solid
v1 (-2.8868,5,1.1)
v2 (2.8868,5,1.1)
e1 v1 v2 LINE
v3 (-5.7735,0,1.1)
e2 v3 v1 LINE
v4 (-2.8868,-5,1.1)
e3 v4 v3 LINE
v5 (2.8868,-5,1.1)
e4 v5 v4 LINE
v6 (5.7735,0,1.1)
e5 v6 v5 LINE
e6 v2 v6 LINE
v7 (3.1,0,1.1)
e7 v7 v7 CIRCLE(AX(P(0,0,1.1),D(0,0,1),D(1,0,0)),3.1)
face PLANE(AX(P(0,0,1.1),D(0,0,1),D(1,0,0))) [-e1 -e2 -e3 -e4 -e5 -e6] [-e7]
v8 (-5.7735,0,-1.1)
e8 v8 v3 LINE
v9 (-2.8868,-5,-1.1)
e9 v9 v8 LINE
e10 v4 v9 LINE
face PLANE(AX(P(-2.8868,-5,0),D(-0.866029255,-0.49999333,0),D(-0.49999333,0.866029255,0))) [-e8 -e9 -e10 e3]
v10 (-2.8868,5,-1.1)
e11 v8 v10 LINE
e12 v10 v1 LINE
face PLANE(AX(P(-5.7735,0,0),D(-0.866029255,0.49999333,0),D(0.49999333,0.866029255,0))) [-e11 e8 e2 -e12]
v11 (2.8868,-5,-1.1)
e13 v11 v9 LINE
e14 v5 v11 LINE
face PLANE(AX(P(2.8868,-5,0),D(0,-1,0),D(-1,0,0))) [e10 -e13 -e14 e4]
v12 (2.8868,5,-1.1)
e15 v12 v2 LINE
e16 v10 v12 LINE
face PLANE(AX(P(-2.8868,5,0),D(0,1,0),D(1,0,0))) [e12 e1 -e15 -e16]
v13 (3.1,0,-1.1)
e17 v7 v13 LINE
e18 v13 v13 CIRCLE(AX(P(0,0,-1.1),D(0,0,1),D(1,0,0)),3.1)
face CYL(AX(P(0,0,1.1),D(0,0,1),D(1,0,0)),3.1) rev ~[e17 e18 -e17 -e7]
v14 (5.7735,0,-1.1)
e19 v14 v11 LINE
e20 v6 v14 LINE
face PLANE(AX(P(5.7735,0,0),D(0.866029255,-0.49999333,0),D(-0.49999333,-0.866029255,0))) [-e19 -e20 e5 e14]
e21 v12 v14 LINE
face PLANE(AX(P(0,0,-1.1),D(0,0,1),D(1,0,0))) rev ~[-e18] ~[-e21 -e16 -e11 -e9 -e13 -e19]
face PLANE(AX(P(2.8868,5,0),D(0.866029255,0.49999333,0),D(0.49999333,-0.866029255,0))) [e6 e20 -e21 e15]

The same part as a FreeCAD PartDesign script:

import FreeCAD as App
import Part
import Sketcher
from FreeCAD import Vector
Q = App.Units.Quantity

doc = App.newDocument("Part")
body = doc.addObject("PartDesign::Body", "Body")

sketch1 = doc.addObject("Sketcher::SketchObject", "Sketch")
body.addObject(sketch1)
sketch1.AttachmentSupport = (doc.XY_Plane, [""])
sketch1.MapMode = "FlatFace"
sketch1.addGeometry(Part.LineSegment(Vector(6, 0, 0), Vector(3, 5, 0)), False)
sketch1.addGeometry(Part.LineSegment(Vector(3, 5, 0), Vector(-3, 5, 0)), False)
sketch1.addGeometry(Part.LineSegment(Vector(-3, 5, 0), Vector(-6, 0, 0)), False)
sketch1.addGeometry(Part.LineSegment(Vector(-6, 0, 0), Vector(-3, -5, 0)), False)
sketch1.addGeometry(Part.LineSegment(Vector(-3, -5, 0), Vector(3, -5, 0)), False)
sketch1.addGeometry(Part.LineSegment(Vector(3, -5, 0), Vector(6, 0, 0)), False)
sketch1.addConstraint(Sketcher.Constraint("Coincident", 0, 2, 1, 1))
sketch1.addConstraint(Sketcher.Constraint("Coincident", 1, 2, 2, 1))
sketch1.addConstraint(Sketcher.Constraint("Coincident", 2, 2, 3, 1))
sketch1.addConstraint(Sketcher.Constraint("Coincident", 3, 2, 4, 1))
sketch1.addConstraint(Sketcher.Constraint("Coincident", 4, 2, 5, 1))
sketch1.addConstraint(Sketcher.Constraint("Coincident", 5, 2, 0, 1))
sketch1.addConstraint(Sketcher.Constraint("Horizontal", 1))
sketch1.addConstraint(Sketcher.Constraint("Horizontal", 4))
sketch1.addConstraint(Sketcher.Constraint("Symmetric", 0, 2, 3, 2, -1, 1))
sketch1.addConstraint(Sketcher.Constraint("Symmetric", 2, 2, 5, 2, -1, 1))
sketch1.addConstraint(Sketcher.Constraint("PointOnObject", 2, 2, -1))
sketch1.addConstraint(Sketcher.Constraint("Parallel", 2, 5))
sketch1.addConstraint(Sketcher.Constraint("Vertical", 1, 2, 3, 2))
sketch1.addConstraint(Sketcher.Constraint("DistanceY", 3, 2, 1, 2, 10.0))
sketch1.addConstraint(Sketcher.Constraint("Angle", 0, Q("119.9996 deg")))
sketch1.addConstraint(Sketcher.Constraint("DistanceX", 1, 2, 1, 1, 5.7736))
pad1 = doc.addObject("PartDesign::Pad", "Pad")
body.addObject(pad1)
pad1.Profile = sketch1
pad1.Length = 2.2
pad1.Midplane = True

sketch2 = doc.addObject("Sketcher::SketchObject", "Sketch001")
body.addObject(sketch2)
sketch2.AttachmentSupport = (doc.XY_Plane, [""])
sketch2.MapMode = "FlatFace"
sketch2.AttachmentOffset = App.Placement(Vector(0, 0, 1.1), App.Rotation())
sketch2.addGeometry(Part.Circle(Vector(0, 0, 0), Vector(0, 0, 1), 3.1), False)
sketch2.addConstraint(Sketcher.Constraint("Coincident", 0, 3, -1, 1))
sketch2.addConstraint(Sketcher.Constraint("Diameter", 0, 6.2))
pocket1 = doc.addObject("PartDesign::Pocket", "Pocket")
body.addObject(pocket1)
pocket1.Profile = sketch2
pocket1.Type = "ThroughAll"

doc.recompute()
